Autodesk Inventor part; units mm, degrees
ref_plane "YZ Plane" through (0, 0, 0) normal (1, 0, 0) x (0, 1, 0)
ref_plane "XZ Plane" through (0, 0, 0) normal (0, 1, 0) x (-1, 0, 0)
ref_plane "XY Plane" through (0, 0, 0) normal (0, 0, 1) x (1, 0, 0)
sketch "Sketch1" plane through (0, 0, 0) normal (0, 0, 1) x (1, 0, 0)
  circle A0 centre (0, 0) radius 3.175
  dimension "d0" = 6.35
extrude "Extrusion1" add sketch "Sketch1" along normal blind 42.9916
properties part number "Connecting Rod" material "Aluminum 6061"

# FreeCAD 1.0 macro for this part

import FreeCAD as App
import Part
import Sketcher
from FreeCAD import Vector
Q = App.Units.Quantity

doc = App.newDocument("Part")
body = doc.addObject("PartDesign::Body", "Body")

# Sketch on XY plane
sketch1 = doc.addObject("Sketcher::SketchObject", "Sketch")
body.addObject(sketch1)
sketch1.AttachmentSupport = (doc.XY_Plane, [""])
sketch1.MapMode = "FlatFace"
sketch1.addGeometry(Part.Circle(Vector(0, 0, 0), Vector(0, 0, 1), 3.2), False)
sketch1.addConstraint(Sketcher.Constraint("Coincident", 0, 3, -1, 1))
sketch1.addConstraint(Sketcher.Constraint("Diameter", 0, Q("0.25 in")))
pad1 = doc.addObject("PartDesign::Pad", "Pad")
body.addObject(pad1)
pad1.Profile = sketch1
pad1.Length = 42.9916

doc.recompute()
